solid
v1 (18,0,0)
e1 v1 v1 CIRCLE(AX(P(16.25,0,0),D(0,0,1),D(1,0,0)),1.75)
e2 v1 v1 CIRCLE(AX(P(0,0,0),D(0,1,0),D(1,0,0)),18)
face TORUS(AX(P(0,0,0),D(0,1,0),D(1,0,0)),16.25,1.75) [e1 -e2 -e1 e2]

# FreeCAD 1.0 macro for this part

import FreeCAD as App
import Part
import Sketcher
from FreeCAD import Vector

doc = App.newDocument("Part")
params = doc.addObject("Spreadsheet::Sheet", "Params")
for row, (alias, value) in enumerate([
    ("sketch1_diameter", "3.5 mm"),
    ("revolution_angle", "360 deg"),
], start=1):
    params.set(f"A{row}", alias)
    params.set(f"B{row}", "=" + value)
    params.setAlias(f"B{row}", alias)

body = doc.addObject("PartDesign::Body", "Body")

sketch1 = doc.addObject("Sketcher::SketchObject", "Sketch")
body.addObject(sketch1)
sketch1.AttachmentSupport = (doc.XY_Plane, [""])
sketch1.MapMode = "FlatFace"
sketch1.addGeometry(Part.Circle(Vector(16.2, 0, 0), Vector(0, 0, 1), 1.8), False)
sketch1.addConstraint(Sketcher.Constraint("PointOnObject", 0, 3, -1))
sketch1.addConstraint(Sketcher.Constraint("Diameter", 0, 3.5))
sketch1.addConstraint(Sketcher.Constraint("DistanceX", -1, 1, 0, 3, 16.25))
sketch1.setExpression("Constraints[1]", "Params.sketch1_diameter")
revolution = doc.addObject("PartDesign::Revolution", "Revolution")
body.addObject(revolution)
revolution.Profile = sketch1
revolution.ReferenceAxis = (sketch1, ["V_Axis"])
revolution.setExpression("Angle", "Params.revolution_angle")

doc.recompute()
